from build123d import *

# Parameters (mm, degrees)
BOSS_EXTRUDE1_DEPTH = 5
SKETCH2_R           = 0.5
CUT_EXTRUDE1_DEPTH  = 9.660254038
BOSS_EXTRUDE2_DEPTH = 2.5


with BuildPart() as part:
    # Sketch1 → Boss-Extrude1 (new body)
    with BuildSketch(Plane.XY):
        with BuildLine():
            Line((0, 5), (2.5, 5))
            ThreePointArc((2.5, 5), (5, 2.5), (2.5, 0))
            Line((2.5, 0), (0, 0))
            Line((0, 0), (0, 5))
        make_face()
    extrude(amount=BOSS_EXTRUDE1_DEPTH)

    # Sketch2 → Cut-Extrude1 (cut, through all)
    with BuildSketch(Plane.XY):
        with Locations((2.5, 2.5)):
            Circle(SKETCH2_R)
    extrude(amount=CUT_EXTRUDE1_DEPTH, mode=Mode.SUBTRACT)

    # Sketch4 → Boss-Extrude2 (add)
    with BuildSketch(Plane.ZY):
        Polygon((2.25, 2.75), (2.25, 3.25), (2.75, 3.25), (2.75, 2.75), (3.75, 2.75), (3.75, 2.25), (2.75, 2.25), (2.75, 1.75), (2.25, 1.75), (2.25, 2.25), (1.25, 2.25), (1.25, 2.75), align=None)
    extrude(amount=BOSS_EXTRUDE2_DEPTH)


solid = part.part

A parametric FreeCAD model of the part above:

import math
import FreeCAD as App
import Part
import Sketcher


def add_polygon(sketch, points):
    """Adds a closed chain of lines whose ends are joined by coincident constraints."""
    first, n = sketch.GeometryCount, len(points)
    for a, b in zip(points, points[1:] + points[:1]):
        sketch.addGeometry(Part.LineSegment(App.Vector(*a, 0), App.Vector(*b, 0)), False)
    for i in range(n):
        sketch.addConstraint(Sketcher.Constraint("Coincident", first + i, 2, first + (i + 1) % n, 1))

doc = App.newDocument("Part")
body = doc.addObject("PartDesign::Body", "Body")

# Sketch on XY plane
sketch1 = body.newObject("Sketcher::SketchObject", "Sketch")
sketch1.AttachmentSupport = (doc.getObject("XY_Plane"), [""])
sketch1.MapMode = "FlatFace"
sketch1.addGeometry(Part.LineSegment(App.Vector(2.5, 5, 0), App.Vector(0, 5, 0)), False)
sketch1.addGeometry(Part.LineSegment(App.Vector(0, 5, 0), App.Vector(0, 0, 0)), False)
sketch1.addGeometry(Part.LineSegment(App.Vector(0, 0, 0), App.Vector(2.5, 0, 0)), False)
sketch1.addGeometry(Part.ArcOfCircle(Part.Circle(App.Vector(2.5, 2.5, 0), App.Vector(0, 0, 1), 2.5), math.radians(-90), math.radians(90)), False)
sketch1.addConstraint(Sketcher.Constraint("Coincident", 0, 2, 1, 1))
sketch1.addConstraint(Sketcher.Constraint("Coincident", 1, 2, 2, 1))
sketch1.addConstraint(Sketcher.Constraint("Tangent", 2, 2, 3, 1))
sketch1.addConstraint(Sketcher.Constraint("Tangent", 3, 2, 0, 1))
sketch1.addConstraint(Sketcher.Constraint("Horizontal", 0))
sketch1.addConstraint(Sketcher.Constraint("Vertical", 1))
sketch1.addConstraint(Sketcher.Constraint("Horizontal", 2))
sketch1.addConstraint(Sketcher.Constraint("Coincident", 1, 2, -1, 1))
sketch1.addConstraint(Sketcher.Constraint("Radius", 3, 2.5))
sketch1.addConstraint(Sketcher.Constraint("DistanceX", 0, 2, 0, 1, 2.5))
pad1 = body.newObject("PartDesign::Pad", "Pad")
pad1.Profile = sketch1
pad1.Length = 5

# Sketch on XY plane
sketch2 = body.newObject("Sketcher::SketchObject", "Sketch001")
sketch2.AttachmentSupport = (doc.getObject("XY_Plane"), [""])
sketch2.MapMode = "FlatFace"
sketch2.addGeometry(Part.Circle(App.Vector(2.5, 2.5, 0), App.Vector(0, 0, 1), 0.5), False)
sketch2.addConstraint(Sketcher.Constraint("Diameter", 0, 1.0))
sketch2.addConstraint(Sketcher.Constraint("DistanceX", -1, 1, 0, 3, 2.5))
sketch2.addConstraint(Sketcher.Constraint("DistanceY", -1, 1, 0, 3, 2.5))
pocket1 = body.newObject("PartDesign::Pocket", "Pocket")
pocket1.Profile = sketch2
pocket1.Type = "ThroughAll"
pocket1.Reversed = True

# Sketch on YZ plane
sketch3 = body.newObject("Sketcher::SketchObject", "Sketch002")
sketch3.AttachmentSupport = (doc.getObject("YZ_Plane"), [""])
sketch3.MapMode = "FlatFace"
add_polygon(sketch3, [(3.2, 2.2), (2.8, 2.2), (2.8, 1.2), (2.2, 1.2), (2.2, 2.2), (1.8, 2.2), (1.8, 2.8), (2.2, 2.8), (2.2, 3.8), (2.8, 3.8), (2.8, 2.8), (3.2, 2.8)])  # lines 0-11
sketch3.addConstraint(Sketcher.Constraint("Horizontal", 0))
sketch3.addConstraint(Sketcher.Constraint("Vertical", 1))
sketch3.addConstraint(Sketcher.Constraint("Horizontal", 2))
sketch3.addConstraint(Sketcher.Constraint("Vertical", 3))
sketch3.addConstraint(Sketcher.Constraint("Horizontal", 4))
sketch3.addConstraint(Sketcher.Constraint("Vertical", 5))
sketch3.addConstraint(Sketcher.Constraint("Horizontal", 6))
sketch3.addConstraint(Sketcher.Constraint("Vertical", 7))
sketch3.addConstraint(Sketcher.Constraint("Horizontal", 8))
sketch3.addConstraint(Sketcher.Constraint("Vertical", 9))
sketch3.addConstraint(Sketcher.Constraint("Horizontal", 10))
sketch3.addConstraint(Sketcher.Constraint("Vertical", 11))
sketch3.addConstraint(Sketcher.Constraint("Horizontal", 0, 2, 3, 2))
sketch3.addConstraint(Sketcher.Constraint("Horizontal", 6, 2, 9, 2))
sketch3.addConstraint(Sketcher.Constraint("Vertical", 3, 2, 6, 2))
sketch3.addConstraint(Sketcher.Constraint("Vertical", 1, 2, 8, 2))
sketch3.addConstraint(Sketcher.Constraint("Equal", 0, 2))
sketch3.addConstraint(Sketcher.Constraint("Equal", 2, 4))
sketch3.addConstraint(Sketcher.Constraint("Equal", 10, 5))
sketch3.addConstraint(Sketcher.Constraint("Equal", 3, 7))
sketch3.addConstraint(Sketcher.Constraint("DistanceY", 1, 2, 1, 1, 1.0))
sketch3.addConstraint(Sketcher.Constraint("DistanceX", 0, 2, 0, 1, 0.5))
sketch3.addConstraint(Sketcher.Constraint("DistanceX", -1, 1, 0, 2, 2.75))
sketch3.addConstraint(Sketcher.Constraint("DistanceY", -1, 1, 0, 2, 2.25))
pad2 = body.newObject("PartDesign::Pad", "Pad001")
pad2.Profile = sketch3
pad2.Length = 2.5
pad2.Reversed = True

doc.recompute()
